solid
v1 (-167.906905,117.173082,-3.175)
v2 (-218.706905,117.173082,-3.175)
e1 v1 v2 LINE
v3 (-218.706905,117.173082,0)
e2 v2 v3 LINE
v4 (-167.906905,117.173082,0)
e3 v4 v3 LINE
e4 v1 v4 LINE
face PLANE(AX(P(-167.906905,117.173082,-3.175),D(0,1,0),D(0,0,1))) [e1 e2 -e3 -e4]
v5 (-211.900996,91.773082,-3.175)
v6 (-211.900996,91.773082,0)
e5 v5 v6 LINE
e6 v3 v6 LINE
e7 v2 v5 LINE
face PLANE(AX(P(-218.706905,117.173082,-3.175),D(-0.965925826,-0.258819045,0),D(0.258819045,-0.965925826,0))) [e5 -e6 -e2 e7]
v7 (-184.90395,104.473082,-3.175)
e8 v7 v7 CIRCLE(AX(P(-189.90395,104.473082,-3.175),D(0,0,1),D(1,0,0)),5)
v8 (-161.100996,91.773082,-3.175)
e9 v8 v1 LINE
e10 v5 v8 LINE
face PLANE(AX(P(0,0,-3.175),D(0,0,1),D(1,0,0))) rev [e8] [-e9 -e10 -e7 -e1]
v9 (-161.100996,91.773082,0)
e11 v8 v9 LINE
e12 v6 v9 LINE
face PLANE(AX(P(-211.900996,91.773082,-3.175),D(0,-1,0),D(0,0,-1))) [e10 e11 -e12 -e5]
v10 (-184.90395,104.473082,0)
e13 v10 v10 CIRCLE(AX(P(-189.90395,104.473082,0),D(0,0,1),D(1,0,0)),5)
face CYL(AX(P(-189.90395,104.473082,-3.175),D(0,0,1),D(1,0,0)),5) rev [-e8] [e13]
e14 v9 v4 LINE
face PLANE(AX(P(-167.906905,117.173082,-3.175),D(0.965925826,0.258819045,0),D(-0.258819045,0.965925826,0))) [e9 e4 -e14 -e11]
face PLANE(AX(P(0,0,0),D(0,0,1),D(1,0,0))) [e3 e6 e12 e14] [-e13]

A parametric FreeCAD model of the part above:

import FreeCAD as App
import Part
import Sketcher
Q = App.Units.Quantity


def add_polygon(sketch, points):
    """Adds a closed chain of lines whose ends are joined by coincident constraints."""
    first, n = sketch.GeometryCount, len(points)
    for a, b in zip(points, points[1:] + points[:1]):
        sketch.addGeometry(Part.LineSegment(App.Vector(*a, 0), App.Vector(*b, 0)), False)
    for i in range(n):
        sketch.addConstraint(Sketcher.Constraint("Coincident", first + i, 2, first + (i + 1) % n, 1))

doc = App.newDocument("Part")
body = doc.addObject("PartDesign::Body", "Body")

sketch1 = doc.addObject("Sketcher::SketchObject", "Sketch")
body.addObject(sketch1)
sketch1.AttachmentSupport = (doc.XY_Plane, [""])
sketch1.MapMode = "FlatFace"
add_polygon(sketch1, [(-218.706905, 117.173082), (-211.900996, 91.773082), (-161.100996, 91.773082), (-167.906905, 117.173082)])
sketch1.addGeometry(Part.Circle(App.Vector(-189.90395, 104.473082, 0), App.Vector(0, 0, 1), 5), False)
sketch1.addConstraint(Sketcher.Constraint("Horizontal", 1))
sketch1.addConstraint(Sketcher.Constraint("Horizontal", 3))
sketch1.addConstraint(Sketcher.Constraint("Parallel", 0, 2))
sketch1.addConstraint(Sketcher.Constraint("DistanceX", 1, 1, 1, 2, Q("2 in")))
sketch1.addConstraint(Sketcher.Constraint("Angle", 0, Q("-75 deg")))
sketch1.addConstraint(Sketcher.Constraint("DistanceY", 1, 2, 2, 2, Q("1 in")))
sketch1.addConstraint(Sketcher.Constraint("DistanceY", 0, 2, 4, 3, Q("0.5 in")))
sketch1.addConstraint(Sketcher.Constraint("Diameter", 4, 10.0))
sketch1.addConstraint(Sketcher.Constraint("DistanceX", 4, 3, -1, 1, 189.90395))
sketch1.addConstraint(Sketcher.Constraint("DistanceY", -1, 1, 4, 3, 104.473082))
sketch1.addConstraint(Sketcher.Constraint("DistanceX", 0, 2, -1, 1, 211.900996))
pad1 = doc.addObject("PartDesign::Pad", "Pad")
body.addObject(pad1)
pad1.Profile = sketch1
pad1.Length = Q("0.125 in")
pad1.Reversed = True

doc.recompute()
